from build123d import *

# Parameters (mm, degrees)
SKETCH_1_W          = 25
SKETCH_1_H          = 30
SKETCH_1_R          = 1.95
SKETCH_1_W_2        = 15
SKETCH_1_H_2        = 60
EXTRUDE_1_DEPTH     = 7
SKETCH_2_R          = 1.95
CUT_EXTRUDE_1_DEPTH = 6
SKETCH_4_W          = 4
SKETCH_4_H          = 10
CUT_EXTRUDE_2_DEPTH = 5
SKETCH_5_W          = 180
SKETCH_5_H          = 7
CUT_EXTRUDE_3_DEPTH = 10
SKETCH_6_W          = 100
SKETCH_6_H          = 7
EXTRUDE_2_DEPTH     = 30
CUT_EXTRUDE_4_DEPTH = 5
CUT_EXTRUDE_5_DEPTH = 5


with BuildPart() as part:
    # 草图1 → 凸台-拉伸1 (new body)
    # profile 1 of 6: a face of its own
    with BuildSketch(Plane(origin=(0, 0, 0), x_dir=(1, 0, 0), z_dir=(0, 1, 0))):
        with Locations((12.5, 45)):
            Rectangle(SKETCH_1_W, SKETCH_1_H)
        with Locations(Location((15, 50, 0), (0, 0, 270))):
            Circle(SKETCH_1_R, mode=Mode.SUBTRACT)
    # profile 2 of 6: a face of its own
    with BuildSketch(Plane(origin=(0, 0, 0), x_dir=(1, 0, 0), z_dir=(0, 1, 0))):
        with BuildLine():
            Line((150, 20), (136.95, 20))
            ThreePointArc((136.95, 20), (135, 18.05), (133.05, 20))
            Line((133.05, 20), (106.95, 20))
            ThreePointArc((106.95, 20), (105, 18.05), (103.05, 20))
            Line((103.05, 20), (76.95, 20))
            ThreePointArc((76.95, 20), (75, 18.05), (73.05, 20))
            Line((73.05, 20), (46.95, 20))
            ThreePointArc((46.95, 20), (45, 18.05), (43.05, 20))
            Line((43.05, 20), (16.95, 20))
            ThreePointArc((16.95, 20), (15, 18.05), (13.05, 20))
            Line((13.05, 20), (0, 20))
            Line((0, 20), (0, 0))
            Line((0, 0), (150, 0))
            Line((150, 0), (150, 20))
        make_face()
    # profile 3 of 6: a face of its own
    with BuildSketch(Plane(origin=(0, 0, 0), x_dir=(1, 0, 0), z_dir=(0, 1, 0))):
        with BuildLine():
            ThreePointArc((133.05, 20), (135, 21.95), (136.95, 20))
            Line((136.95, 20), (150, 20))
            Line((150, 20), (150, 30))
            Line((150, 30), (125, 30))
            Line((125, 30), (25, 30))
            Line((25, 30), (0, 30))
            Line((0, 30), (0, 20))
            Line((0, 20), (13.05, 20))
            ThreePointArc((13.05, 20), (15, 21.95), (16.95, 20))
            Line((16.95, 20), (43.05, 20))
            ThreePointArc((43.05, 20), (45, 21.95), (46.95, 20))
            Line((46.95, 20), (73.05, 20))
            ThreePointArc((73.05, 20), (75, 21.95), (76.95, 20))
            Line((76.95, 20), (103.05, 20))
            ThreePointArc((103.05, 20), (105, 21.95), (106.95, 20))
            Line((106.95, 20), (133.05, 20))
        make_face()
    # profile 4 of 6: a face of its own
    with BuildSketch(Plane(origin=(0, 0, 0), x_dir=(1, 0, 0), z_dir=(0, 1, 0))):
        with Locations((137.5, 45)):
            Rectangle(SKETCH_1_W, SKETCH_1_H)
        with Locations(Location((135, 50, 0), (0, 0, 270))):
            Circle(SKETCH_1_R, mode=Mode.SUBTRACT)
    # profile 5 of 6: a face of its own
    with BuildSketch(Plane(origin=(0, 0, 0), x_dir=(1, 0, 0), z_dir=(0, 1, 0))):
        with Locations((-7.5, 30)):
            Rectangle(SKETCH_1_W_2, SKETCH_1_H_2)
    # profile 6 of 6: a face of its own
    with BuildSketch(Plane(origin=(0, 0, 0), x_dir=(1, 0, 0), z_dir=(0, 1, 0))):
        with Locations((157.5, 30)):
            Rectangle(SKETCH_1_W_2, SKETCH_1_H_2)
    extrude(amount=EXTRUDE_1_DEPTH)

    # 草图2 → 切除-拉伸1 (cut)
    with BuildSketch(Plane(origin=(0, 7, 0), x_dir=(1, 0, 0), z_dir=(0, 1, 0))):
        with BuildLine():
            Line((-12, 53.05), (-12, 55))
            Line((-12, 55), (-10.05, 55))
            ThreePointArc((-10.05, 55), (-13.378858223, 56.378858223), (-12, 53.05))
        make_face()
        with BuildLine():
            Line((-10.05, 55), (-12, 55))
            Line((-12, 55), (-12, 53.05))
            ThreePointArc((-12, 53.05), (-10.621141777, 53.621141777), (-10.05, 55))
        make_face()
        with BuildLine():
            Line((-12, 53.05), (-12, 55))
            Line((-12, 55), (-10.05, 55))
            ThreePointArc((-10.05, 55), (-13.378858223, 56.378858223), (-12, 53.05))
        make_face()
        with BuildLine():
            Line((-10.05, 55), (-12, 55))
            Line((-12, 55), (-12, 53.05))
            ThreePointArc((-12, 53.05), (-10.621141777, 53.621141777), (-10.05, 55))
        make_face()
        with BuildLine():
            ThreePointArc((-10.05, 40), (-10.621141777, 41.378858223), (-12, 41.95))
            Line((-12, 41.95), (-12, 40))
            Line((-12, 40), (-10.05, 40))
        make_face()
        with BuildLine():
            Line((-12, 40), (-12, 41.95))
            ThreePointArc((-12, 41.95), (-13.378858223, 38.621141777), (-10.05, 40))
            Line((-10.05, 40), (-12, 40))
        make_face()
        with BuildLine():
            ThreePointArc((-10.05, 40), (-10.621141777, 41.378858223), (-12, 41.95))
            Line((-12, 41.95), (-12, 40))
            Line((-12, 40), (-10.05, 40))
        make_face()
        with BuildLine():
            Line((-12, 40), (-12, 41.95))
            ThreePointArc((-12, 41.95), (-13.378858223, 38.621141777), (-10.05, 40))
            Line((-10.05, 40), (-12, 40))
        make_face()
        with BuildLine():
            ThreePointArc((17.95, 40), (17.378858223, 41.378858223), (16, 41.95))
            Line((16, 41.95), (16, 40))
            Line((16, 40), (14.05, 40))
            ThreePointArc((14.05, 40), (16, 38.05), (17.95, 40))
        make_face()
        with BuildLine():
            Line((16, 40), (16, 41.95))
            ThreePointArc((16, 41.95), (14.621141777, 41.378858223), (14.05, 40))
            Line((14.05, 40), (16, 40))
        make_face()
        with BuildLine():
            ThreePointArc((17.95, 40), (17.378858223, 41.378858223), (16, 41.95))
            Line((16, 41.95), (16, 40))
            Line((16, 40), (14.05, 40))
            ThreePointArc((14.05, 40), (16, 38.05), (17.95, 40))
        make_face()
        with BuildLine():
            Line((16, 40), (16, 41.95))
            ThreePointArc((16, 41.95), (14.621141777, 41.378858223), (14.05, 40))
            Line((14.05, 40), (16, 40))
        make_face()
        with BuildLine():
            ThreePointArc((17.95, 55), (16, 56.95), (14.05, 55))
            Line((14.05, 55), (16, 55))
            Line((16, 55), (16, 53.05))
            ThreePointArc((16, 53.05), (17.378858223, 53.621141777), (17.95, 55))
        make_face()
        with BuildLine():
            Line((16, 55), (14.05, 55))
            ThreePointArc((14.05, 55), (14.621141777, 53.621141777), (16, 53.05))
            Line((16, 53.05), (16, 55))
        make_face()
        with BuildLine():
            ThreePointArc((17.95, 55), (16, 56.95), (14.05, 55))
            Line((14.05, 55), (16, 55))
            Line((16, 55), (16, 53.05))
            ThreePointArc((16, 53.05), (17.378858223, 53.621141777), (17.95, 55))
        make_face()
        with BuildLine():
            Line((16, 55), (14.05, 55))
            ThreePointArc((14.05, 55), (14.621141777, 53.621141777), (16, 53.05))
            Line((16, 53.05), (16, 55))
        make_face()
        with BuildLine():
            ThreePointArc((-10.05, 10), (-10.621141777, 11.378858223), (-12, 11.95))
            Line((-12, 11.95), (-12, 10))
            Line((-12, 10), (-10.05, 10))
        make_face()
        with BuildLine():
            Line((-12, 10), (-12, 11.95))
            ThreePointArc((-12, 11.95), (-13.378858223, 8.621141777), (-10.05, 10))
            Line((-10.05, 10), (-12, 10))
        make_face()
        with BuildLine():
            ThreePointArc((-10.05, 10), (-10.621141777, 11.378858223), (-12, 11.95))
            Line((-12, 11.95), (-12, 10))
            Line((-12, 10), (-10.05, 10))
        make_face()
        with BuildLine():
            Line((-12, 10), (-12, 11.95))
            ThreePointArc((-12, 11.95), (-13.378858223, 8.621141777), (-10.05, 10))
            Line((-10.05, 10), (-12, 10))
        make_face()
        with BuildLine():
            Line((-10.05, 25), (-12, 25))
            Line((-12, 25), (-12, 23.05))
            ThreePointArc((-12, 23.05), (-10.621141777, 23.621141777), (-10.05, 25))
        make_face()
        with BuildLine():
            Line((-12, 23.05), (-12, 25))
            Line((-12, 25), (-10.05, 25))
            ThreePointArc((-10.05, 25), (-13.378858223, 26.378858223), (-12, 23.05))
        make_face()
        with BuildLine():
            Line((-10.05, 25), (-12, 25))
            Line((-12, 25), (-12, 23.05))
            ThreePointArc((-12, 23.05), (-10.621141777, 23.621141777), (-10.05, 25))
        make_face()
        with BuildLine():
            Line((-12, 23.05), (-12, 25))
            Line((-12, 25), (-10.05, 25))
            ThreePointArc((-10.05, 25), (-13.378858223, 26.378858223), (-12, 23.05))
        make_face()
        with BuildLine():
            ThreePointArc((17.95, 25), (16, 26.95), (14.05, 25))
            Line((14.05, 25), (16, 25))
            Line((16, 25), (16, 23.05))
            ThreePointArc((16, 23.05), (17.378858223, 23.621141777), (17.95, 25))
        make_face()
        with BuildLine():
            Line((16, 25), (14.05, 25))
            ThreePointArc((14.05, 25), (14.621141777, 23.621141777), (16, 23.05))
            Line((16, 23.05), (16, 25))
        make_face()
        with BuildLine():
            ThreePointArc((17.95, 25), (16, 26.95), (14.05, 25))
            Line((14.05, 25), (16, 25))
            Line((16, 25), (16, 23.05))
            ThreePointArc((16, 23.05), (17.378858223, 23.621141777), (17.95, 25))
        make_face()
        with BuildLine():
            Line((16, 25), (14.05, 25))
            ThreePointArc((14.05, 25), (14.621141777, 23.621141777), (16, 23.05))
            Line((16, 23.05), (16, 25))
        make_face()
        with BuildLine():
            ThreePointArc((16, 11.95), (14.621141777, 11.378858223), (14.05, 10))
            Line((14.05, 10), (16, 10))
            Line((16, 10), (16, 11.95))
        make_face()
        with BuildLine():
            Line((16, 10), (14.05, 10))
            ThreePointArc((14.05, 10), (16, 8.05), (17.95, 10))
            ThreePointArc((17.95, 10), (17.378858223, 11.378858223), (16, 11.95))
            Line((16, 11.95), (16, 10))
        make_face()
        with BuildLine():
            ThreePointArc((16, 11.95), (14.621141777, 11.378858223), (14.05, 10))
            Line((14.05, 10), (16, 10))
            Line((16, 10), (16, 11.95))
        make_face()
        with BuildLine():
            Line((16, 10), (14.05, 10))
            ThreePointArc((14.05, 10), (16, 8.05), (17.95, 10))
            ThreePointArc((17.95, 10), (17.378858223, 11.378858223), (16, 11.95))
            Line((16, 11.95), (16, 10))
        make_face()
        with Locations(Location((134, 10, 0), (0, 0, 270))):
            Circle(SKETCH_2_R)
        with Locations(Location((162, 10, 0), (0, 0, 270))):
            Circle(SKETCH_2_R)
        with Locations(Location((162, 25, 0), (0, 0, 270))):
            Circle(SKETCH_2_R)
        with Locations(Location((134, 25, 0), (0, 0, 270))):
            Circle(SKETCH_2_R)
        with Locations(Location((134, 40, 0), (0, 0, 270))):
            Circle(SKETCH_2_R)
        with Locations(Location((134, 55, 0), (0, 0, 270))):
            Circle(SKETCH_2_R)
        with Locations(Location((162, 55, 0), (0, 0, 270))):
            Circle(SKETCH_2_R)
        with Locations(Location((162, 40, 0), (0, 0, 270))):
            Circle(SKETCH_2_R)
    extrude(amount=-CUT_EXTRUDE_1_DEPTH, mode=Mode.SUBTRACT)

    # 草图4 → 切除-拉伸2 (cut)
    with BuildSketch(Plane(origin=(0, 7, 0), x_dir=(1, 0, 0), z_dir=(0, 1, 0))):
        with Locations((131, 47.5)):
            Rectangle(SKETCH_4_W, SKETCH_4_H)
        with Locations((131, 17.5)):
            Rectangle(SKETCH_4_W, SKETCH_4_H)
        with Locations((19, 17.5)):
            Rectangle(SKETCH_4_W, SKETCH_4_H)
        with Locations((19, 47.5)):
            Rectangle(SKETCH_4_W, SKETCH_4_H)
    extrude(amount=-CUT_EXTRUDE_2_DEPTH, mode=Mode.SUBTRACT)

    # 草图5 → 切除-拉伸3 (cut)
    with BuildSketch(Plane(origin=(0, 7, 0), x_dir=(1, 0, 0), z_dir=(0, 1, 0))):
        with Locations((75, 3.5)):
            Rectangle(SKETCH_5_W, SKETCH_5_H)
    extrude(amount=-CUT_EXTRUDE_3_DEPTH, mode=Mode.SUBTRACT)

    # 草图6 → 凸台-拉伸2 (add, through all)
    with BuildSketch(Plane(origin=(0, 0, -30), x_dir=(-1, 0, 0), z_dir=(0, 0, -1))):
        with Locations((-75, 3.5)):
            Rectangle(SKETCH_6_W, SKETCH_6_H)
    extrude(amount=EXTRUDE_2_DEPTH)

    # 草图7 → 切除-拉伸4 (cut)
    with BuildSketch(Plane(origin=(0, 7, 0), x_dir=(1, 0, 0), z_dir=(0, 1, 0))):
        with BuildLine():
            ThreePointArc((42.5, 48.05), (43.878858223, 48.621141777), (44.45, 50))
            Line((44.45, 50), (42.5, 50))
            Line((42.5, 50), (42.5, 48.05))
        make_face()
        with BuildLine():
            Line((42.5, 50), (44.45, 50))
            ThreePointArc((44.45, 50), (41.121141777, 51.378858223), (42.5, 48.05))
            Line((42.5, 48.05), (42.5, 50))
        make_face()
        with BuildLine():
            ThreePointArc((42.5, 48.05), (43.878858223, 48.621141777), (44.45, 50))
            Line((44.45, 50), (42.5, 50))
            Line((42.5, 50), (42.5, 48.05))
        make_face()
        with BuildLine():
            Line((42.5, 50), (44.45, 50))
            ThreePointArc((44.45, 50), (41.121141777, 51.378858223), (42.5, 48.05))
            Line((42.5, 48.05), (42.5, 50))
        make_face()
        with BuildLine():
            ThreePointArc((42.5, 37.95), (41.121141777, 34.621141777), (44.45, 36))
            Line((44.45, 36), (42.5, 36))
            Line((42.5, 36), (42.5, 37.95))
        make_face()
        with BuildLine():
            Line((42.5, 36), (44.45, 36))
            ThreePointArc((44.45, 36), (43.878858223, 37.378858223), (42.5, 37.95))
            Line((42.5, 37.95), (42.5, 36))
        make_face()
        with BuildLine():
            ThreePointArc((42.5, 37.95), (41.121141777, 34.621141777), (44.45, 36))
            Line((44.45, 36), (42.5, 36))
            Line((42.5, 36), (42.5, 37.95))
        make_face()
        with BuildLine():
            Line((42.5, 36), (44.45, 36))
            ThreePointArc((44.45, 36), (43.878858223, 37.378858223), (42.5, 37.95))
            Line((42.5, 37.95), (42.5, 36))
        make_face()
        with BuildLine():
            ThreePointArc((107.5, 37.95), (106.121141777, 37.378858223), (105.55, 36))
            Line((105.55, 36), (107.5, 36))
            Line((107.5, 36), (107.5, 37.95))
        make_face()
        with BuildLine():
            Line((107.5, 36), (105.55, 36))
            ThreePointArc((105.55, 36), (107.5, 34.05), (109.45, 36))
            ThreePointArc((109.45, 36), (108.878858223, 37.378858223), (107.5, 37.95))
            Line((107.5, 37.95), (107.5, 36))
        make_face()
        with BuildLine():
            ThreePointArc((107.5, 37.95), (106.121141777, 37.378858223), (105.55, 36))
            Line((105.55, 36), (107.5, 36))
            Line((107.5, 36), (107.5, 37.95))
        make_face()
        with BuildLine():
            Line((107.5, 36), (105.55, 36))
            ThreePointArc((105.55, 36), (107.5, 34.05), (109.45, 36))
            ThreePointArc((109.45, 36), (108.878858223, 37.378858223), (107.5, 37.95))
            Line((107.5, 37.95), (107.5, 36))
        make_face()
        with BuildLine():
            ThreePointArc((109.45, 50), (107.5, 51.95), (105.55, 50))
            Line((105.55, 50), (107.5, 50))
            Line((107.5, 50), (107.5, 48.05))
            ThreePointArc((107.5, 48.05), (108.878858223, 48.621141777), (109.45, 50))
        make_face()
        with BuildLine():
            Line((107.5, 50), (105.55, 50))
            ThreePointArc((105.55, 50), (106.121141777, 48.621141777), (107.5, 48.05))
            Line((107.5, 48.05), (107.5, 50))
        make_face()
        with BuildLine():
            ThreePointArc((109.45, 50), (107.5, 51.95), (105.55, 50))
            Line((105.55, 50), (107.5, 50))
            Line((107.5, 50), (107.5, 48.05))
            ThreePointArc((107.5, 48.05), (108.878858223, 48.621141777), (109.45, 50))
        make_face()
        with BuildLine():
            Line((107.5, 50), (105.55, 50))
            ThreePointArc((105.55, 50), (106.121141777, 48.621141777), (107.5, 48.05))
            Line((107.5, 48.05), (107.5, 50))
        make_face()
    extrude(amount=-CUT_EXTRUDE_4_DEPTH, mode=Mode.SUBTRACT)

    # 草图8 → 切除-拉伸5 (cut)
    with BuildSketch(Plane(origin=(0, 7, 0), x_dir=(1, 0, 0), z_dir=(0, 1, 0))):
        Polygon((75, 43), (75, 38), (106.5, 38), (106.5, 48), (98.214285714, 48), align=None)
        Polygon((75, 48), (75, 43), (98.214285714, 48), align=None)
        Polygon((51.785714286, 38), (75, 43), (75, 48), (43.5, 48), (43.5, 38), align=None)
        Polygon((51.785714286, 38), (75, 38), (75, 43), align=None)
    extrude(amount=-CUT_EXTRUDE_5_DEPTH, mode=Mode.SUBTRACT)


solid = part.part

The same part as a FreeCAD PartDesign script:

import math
import FreeCAD as App
import Part
import Sketcher
Q = App.Units.Quantity


def add_polygon(sketch, points):
    """Adds a closed chain of lines whose ends are joined by coincident constraints."""
    first, n = sketch.GeometryCount, len(points)
    for a, b in zip(points, points[1:] + points[:1]):
        sketch.addGeometry(Part.LineSegment(App.Vector(*a, 0), App.Vector(*b, 0)), False)
    for i in range(n):
        sketch.addConstraint(Sketcher.Constraint("Coincident", first + i, 2, first + (i + 1) % n, 1))

doc = App.newDocument("Part")
params = doc.addObject("Spreadsheet::Sheet", "Params")
for row, (alias, value) in enumerate([
    ("sketch1_diameter", "3.9 mm"),
    ("sketch1_width", "40 mm"),
    ("sketch1_width2", "180 mm"),
    ("sketch1_height", "60 mm"),
    ("sketch1_height2", "30 mm"),
    ("pad1_length", "7 mm"),
    ("sketch2_diameter", "3.9 mm"),
    ("pocket1_length", "6 mm"),
    ("sketch3_width", "4 mm"),
    ("sketch3_height", "10 mm"),
    ("pocket2_length", "5 mm"),
    ("sketch4_width", "180 mm"),
    ("sketch4_height", "7 mm"),
    ("pocket3_length", "10 mm"),
    ("sketch5_width", "100 mm"),
    ("sketch5_height", "7 mm"),
    ("pad2_length", "30 mm"),
    ("sketch6_radius", "1.95 mm"),
    ("pocket4_length", "5 mm"),
    ("sketch7_width", "63 mm"),
    ("sketch7_height", "10 mm"),
    ("pocket5_length", "5 mm"),
], start=1):
    params.set(f"A{row}", alias)
    params.set(f"B{row}", "=" + value)
    params.setAlias(f"B{row}", alias)

body = doc.addObject("PartDesign::Body", "Body")

# Sketch on XZ plane
sketch1 = doc.addObject("Sketcher::SketchObject", "Sketch")
body.addObject(sketch1)
sketch1.AttachmentSupport = (doc.XZ_Plane, [""])
sketch1.MapMode = "FlatFace"
add_polygon(sketch1, [(25, -60), (-15, -60), (-15, 0), (165, 0), (165, -60), (125, -60), (125, -30), (25, -30)])  # lines 0-7
sketch1.addGeometry(Part.Circle(App.Vector(15, -50, 0), App.Vector(0, 0, 1), 1.95), False)  # 8
sketch1.addGeometry(Part.Circle(App.Vector(135, -20, 0), App.Vector(0, 0, 1), 1.95), False)  # 9
sketch1.addGeometry(Part.Circle(App.Vector(105, -20, 0), App.Vector(0, 0, 1), 1.95), False)  # 10
sketch1.addGeometry(Part.Circle(App.Vector(15, -20, 0), App.Vector(0, 0, 1), 1.95), False)  # 11
sketch1.addGeometry(Part.Circle(App.Vector(45, -20, 0), App.Vector(0, 0, 1), 1.95), False)  # 12
sketch1.addGeometry(Part.Circle(App.Vector(75, -20, 0), App.Vector(0, 0, 1), 1.95), False)  # 13
sketch1.addGeometry(Part.Circle(App.Vector(135, -50, 0), App.Vector(0, 0, 1), 1.95), False)  # 14
sketch1.addConstraint(Sketcher.Constraint("Horizontal", 0))
sketch1.addConstraint(Sketcher.Constraint("Vertical", 1))
sketch1.addConstraint(Sketcher.Constraint("Horizontal", 2))
sketch1.addConstraint(Sketcher.Constraint("Vertical", 3))
sketch1.addConstraint(Sketcher.Constraint("Horizontal", 4))
sketch1.addConstraint(Sketcher.Constraint("Vertical", 5))
sketch1.addConstraint(Sketcher.Constraint("Horizontal", 6))
sketch1.addConstraint(Sketcher.Constraint("Vertical", 7))
sketch1.addConstraint(Sketcher.Constraint("Equal", 8, 9))
sketch1.addConstraint(Sketcher.Constraint("Equal", 9, 10))
sketch1.addConstraint(Sketcher.Constraint("Equal", 10, 11))
sketch1.addConstraint(Sketcher.Constraint("Equal", 11, 12))
sketch1.addConstraint(Sketcher.Constraint("Equal", 12, 13))
sketch1.addConstraint(Sketcher.Constraint("Equal", 13, 14))
sketch1.addConstraint(Sketcher.Constraint("PointOnObject", 1, 2, -1))
sketch1.addConstraint(Sketcher.Constraint("Horizontal", 9, 3, 10, 3))
sketch1.addConstraint(Sketcher.Constraint("Horizontal", 10, 3, 11, 3))
sketch1.addConstraint(Sketcher.Constraint("Horizontal", 11, 3, 12, 3))
sketch1.addConstraint(Sketcher.Constraint("Horizontal", 12, 3, 13, 3))
sketch1.addConstraint(Sketcher.Constraint("Horizontal", 8, 3, 14, 3))
sketch1.addConstraint(Sketcher.Constraint("Horizontal", 0, 2, 3, 2))
sketch1.addConstraint(Sketcher.Constraint("Vertical", 8, 3, 11, 3))
sketch1.addConstraint(Sketcher.Constraint("Vertical", 9, 3, 14, 3))
sketch1.addConstraint(Sketcher.Constraint("Equal", 0, 4))
sketch1.addConstraint(Sketcher.Constraint("Diameter", 8, Q("3.9 mm")))
sketch1.addConstraint(Sketcher.Constraint("DistanceX", 0, 2, 0, 1, Q("40 mm")))
sketch1.addConstraint(Sketcher.Constraint("DistanceX", 2, 1, 2, 2, Q("180 mm")))
sketch1.addConstraint(Sketcher.Constraint("DistanceY", 1, 1, 1, 2, Q("60 mm")))
sketch1.addConstraint(Sketcher.Constraint("DistanceY", 5, 1, 5, 2, Q("30 mm")))
sketch1.addConstraint(Sketcher.Constraint("DistanceX", -1, 1, 8, 3, Q("15 mm")))
sketch1.addConstraint(Sketcher.Constraint("DistanceY", 8, 3, -1, 1, Q("50 mm")))
sketch1.addConstraint(Sketcher.Constraint("DistanceX", -1, 1, 9, 3, Q("135 mm")))
sketch1.addConstraint(Sketcher.Constraint("DistanceY", 9, 3, -1, 1, Q("20 mm")))
sketch1.addConstraint(Sketcher.Constraint("DistanceX", -1, 1, 10, 3, Q("105 mm")))
sketch1.addConstraint(Sketcher.Constraint("DistanceX", -1, 1, 12, 3, Q("45 mm")))
sketch1.addConstraint(Sketcher.Constraint("DistanceX", -1, 1, 13, 3, Q("75 mm")))
sketch1.addConstraint(Sketcher.Constraint("DistanceX", 0, 2, -1, 1, Q("15 mm")))
sketch1.setExpression("Constraints[32]", "Params.sketch1_diameter")
sketch1.setExpression("Constraints[33]", "Params.sketch1_width")
sketch1.setExpression("Constraints[34]", "Params.sketch1_width2")
sketch1.setExpression("Constraints[35]", "Params.sketch1_height")
sketch1.setExpression("Constraints[36]", "Params.sketch1_height2")
pad1 = doc.addObject("PartDesign::Pad", "Pad")
body.addObject(pad1)
pad1.Profile = sketch1
pad1.setExpression("Length", "Params.pad1_length")
pad1.Reversed = True

# Sketch on XZ plane
sketch2 = doc.addObject("Sketcher::SketchObject", "Sketch001")
body.addObject(sketch2)
sketch2.AttachmentSupport = (doc.XZ_Plane, [""])
sketch2.MapMode = "FlatFace"
sketch2.AttachmentOffset = App.Placement(App.Vector(0, 0, -7), App.Rotation())
sketch2.addGeometry(Part.ArcOfCircle(Part.Circle(App.Vector(-12, -55, 0), App.Vector(0, 0, 1), 1.95), math.radians(90), math.radians(360)), False)
sketch2.addGeometry(Part.ArcOfCircle(Part.Circle(App.Vector(-12, -55, 0), App.Vector(0, 0, 1), 1.95), math.radians(0), math.radians(90)), False)
sketch2.addGeometry(Part.ArcOfCircle(Part.Circle(App.Vector(-12, -40, 0), App.Vector(0, 0, 1), 1.95), math.radians(-90), math.radians(0)), False)
sketch2.addGeometry(Part.ArcOfCircle(Part.Circle(App.Vector(-12, -40, 0), App.Vector(0, 0, 1), 1.95), math.radians(0), math.radians(270)), False)
sketch2.addGeometry(Part.ArcOfCircle(Part.Circle(App.Vector(16, -40, 0), App.Vector(0, 0, 1), 1.95), math.radians(-90), math.radians(0)), False)
sketch2.addGeometry(Part.ArcOfCircle(Part.Circle(App.Vector(16, -40, 0), App.Vector(0, 0, 1), 1.95), math.radians(-180), math.radians(-90)), False)
sketch2.addGeometry(Part.ArcOfCircle(Part.Circle(App.Vector(16, -40, 0), App.Vector(0, 0, 1), 1.95), math.radians(0), math.radians(180)), False)
sketch2.addGeometry(Part.ArcOfCircle(Part.Circle(App.Vector(16, -55, 0), App.Vector(0, 0, 1), 1.95), math.radians(180), math.radians(360)), False)
sketch2.addGeometry(Part.ArcOfCircle(Part.Circle(App.Vector(16, -55, 0), App.Vector(0, 0, 1), 1.95), math.radians(90), math.radians(180)), False)
sketch2.addGeometry(Part.ArcOfCircle(Part.Circle(App.Vector(16, -55, 0), App.Vector(0, 0, 1), 1.95), math.radians(0), math.radians(90)), False)
sketch2.addGeometry(Part.ArcOfCircle(Part.Circle(App.Vector(-12, -10, 0), App.Vector(0, 0, 1), 1.95), math.radians(-90), math.radians(0)), False)
sketch2.addGeometry(Part.ArcOfCircle(Part.Circle(App.Vector(-12, -10, 0), App.Vector(0, 0, 1), 1.95), math.radians(0), math.radians(270)), False)
sketch2.addGeometry(Part.ArcOfCircle(Part.Circle(App.Vector(-12, -25, 0), App.Vector(0, 0, 1), 1.95), math.radians(0), math.radians(90)), False)
sketch2.addGeometry(Part.ArcOfCircle(Part.Circle(App.Vector(-12, -25, 0), App.Vector(0, 0, 1), 1.95), math.radians(90), math.radians(360)), False)
sketch2.addGeometry(Part.ArcOfCircle(Part.Circle(App.Vector(16, -25, 0), App.Vector(0, 0, 1), 1.95), math.radians(180), math.radians(360)), False)
sketch2.addGeometry(Part.ArcOfCircle(Part.Circle(App.Vector(16, -25, 0), App.Vector(0, 0, 1), 1.95), math.radians(90), math.radians(180)), False)
sketch2.addGeometry(Part.ArcOfCircle(Part.Circle(App.Vector(16, -25, 0), App.Vector(0, 0, 1), 1.95), math.radians(0), math.radians(90)), False)
sketch2.addGeometry(Part.ArcOfCircle(Part.Circle(App.Vector(16, -10, 0), App.Vector(0, 0, 1), 1.95), math.radians(-180), math.radians(-90)), False)
sketch2.addGeometry(Part.ArcOfCircle(Part.Circle(App.Vector(16, -10, 0), App.Vector(0, 0, 1), 1.95), math.radians(0), math.radians(180)), False)
sketch2.addGeometry(Part.ArcOfCircle(Part.Circle(App.Vector(16, -10, 0), App.Vector(0, 0, 1), 1.95), math.radians(-90), math.radians(0)), False)
sketch2.addGeometry(Part.Circle(App.Vector(134, -10, 0), App.Vector(0, 0, 1), 1.95), False)
sketch2.addGeometry(Part.Circle(App.Vector(162, -10, 0), App.Vector(0, 0, 1), 1.95), False)
sketch2.addGeometry(Part.Circle(App.Vector(162, -25, 0), App.Vector(0, 0, 1), 1.95), False)
sketch2.addGeometry(Part.Circle(App.Vector(134, -25, 0), App.Vector(0, 0, 1), 1.95), False)
sketch2.addGeometry(Part.Circle(App.Vector(134, -40, 0), App.Vector(0, 0, 1), 1.95), False)
sketch2.addGeometry(Part.Circle(App.Vector(134, -55, 0), App.Vector(0, 0, 1), 1.95), False)
sketch2.addGeometry(Part.Circle(App.Vector(162, -55, 0), App.Vector(0, 0, 1), 1.95), False)
sketch2.addGeometry(Part.Circle(App.Vector(162, -40, 0), App.Vector(0, 0, 1), 1.95), False)
sketch2.addConstraint(Sketcher.Constraint("Tangent", 0, 1, 1, 2))
sketch2.addConstraint(Sketcher.Constraint("Coincident", 1, 1, 0, 2))
sketch2.addConstraint(Sketcher.Constraint("Tangent", 2, 1, 3, 2))
sketch2.addConstraint(Sketcher.Constraint("Coincident", 3, 1, 2, 2))
sketch2.addConstraint(Sketcher.Constraint("Tangent", 4, 1, 5, 2))
sketch2.addConstraint(Sketcher.Constraint("Tangent", 5, 1, 6, 2))
sketch2.addConstraint(Sketcher.Constraint("Tangent", 6, 1, 4, 2))
sketch2.addConstraint(Sketcher.Constraint("Tangent", 7, 1, 8, 2))
sketch2.addConstraint(Sketcher.Constraint("Tangent", 8, 1, 9, 2))
sketch2.addConstraint(Sketcher.Constraint("Tangent", 9, 1, 7, 2))
sketch2.addConstraint(Sketcher.Constraint("Tangent", 10, 1, 11, 2))
sketch2.addConstraint(Sketcher.Constraint("Coincident", 11, 1, 10, 2))
sketch2.addConstraint(Sketcher.Constraint("Tangent", 12, 1, 13, 2))
sketch2.addConstraint(Sketcher.Constraint("Coincident", 13, 1, 12, 2))
sketch2.addConstraint(Sketcher.Constraint("Tangent", 14, 1, 15, 2))
sketch2.addConstraint(Sketcher.Constraint("Tangent", 15, 1, 16, 2))
sketch2.addConstraint(Sketcher.Constraint("Tangent", 16, 1, 14, 2))
sketch2.addConstraint(Sketcher.Constraint("Tangent", 17, 1, 18, 2))
sketch2.addConstraint(Sketcher.Constraint("Tangent", 18, 1, 19, 2))
sketch2.addConstraint(Sketcher.Constraint("Tangent", 19, 1, 17, 2))
sketch2.addConstraint(Sketcher.Constraint("Equal", 1, 2))
sketch2.addConstraint(Sketcher.Constraint("Equal", 3, 4))
sketch2.addConstraint(Sketcher.Constraint("Equal", 6, 7))
sketch2.addConstraint(Sketcher.Constraint("Equal", 9, 10))
sketch2.addConstraint(Sketcher.Constraint("Equal", 11, 12))
sketch2.addConstraint(Sketcher.Constraint("Equal", 13, 14))
sketch2.addConstraint(Sketcher.Constraint("Equal", 16, 17))
sketch2.addConstraint(Sketcher.Constraint("Equal", 19, 20))
sketch2.addConstraint(Sketcher.Constraint("Equal", 20, 21))
sketch2.addConstraint(Sketcher.Constraint("Equal", 21, 22))
sketch2.addConstraint(Sketcher.Constraint("Equal", 22, 23))
sketch2.addConstraint(Sketcher.Constraint("Equal", 23, 24))
sketch2.addConstraint(Sketcher.Constraint("Equal", 24, 25))
sketch2.addConstraint(Sketcher.Constraint("Equal", 25, 26))
sketch2.addConstraint(Sketcher.Constraint("Equal", 26, 27))
sketch2.addConstraint(Sketcher.Constraint("Horizontal", 3, 3, 4, 3))
sketch2.addConstraint(Sketcher.Constraint("Horizontal", 1, 3, 7, 3))
sketch2.addConstraint(Sketcher.Constraint("Horizontal", 13, 3, 14, 3))
sketch2.addConstraint(Sketcher.Constraint("Horizontal", 11, 3, 17, 3))
sketch2.addConstraint(Sketcher.Constraint("Horizontal", 19, 3, 20, 3))
sketch2.addConstraint(Sketcher.Constraint("Horizontal", 20, 3, 21, 3))
sketch2.addConstraint(Sketcher.Constraint("Horizontal", 16, 3, 22, 3))
sketch2.addConstraint(Sketcher.Constraint("Horizontal", 22, 3, 23, 3))
sketch2.addConstraint(Sketcher.Constraint("Horizontal", 6, 3, 24, 3))
sketch2.addConstraint(Sketcher.Constraint("Horizontal", 9, 3, 25, 3))
sketch2.addConstraint(Sketcher.Constraint("Horizontal", 25, 3, 26, 3))
sketch2.addConstraint(Sketcher.Constraint("Horizontal", 24, 3, 27, 3))
sketch2.addConstraint(Sketcher.Constraint("Horizontal", 26, 3, 1, 1))
sketch2.addConstraint(Sketcher.Constraint("Horizontal", 27, 3, 3, 1))
sketch2.addConstraint(Sketcher.Constraint("Horizontal", 3, 1, 5, 1))
sketch2.addConstraint(Sketcher.Constraint("Horizontal", 5, 1, 6, 1))
sketch2.addConstraint(Sketcher.Constraint("Horizontal", 1, 1, 7, 1))
sketch2.addConstraint(Sketcher.Constraint("Horizontal", 7, 1, 9, 1))
sketch2.addConstraint(Sketcher.Constraint("Horizontal", 21, 3, 11, 1))
sketch2.addConstraint(Sketcher.Constraint("Horizontal", 23, 3, 12, 1))
sketch2.addConstraint(Sketcher.Constraint("Horizontal", 12, 1, 14, 1))
sketch2.addConstraint(Sketcher.Constraint("Horizontal", 14, 1, 16, 1))
sketch2.addConstraint(Sketcher.Constraint("Horizontal", 11, 1, 17, 1))
sketch2.addConstraint(Sketcher.Constraint("Horizontal", 17, 1, 18, 1))
sketch2.addConstraint(Sketcher.Constraint("Vertical", 1, 3, 2, 3))
sketch2.addConstraint(Sketcher.Constraint("Vertical", 6, 3, 7, 3))
sketch2.addConstraint(Sketcher.Constraint("Vertical", 3, 3, 10, 3))
sketch2.addConstraint(Sketcher.Constraint("Vertical", 11, 3, 12, 3))
sketch2.addConstraint(Sketcher.Constraint("Vertical", 9, 3, 14, 3))
sketch2.addConstraint(Sketcher.Constraint("Vertical", 16, 3, 17, 3))
sketch2.addConstraint(Sketcher.Constraint("Vertical", 21, 3, 22, 3))
sketch2.addConstraint(Sketcher.Constraint("Vertical", 20, 3, 23, 3))
sketch2.addConstraint(Sketcher.Constraint("Vertical", 23, 3, 24, 3))
sketch2.addConstraint(Sketcher.Constraint("Vertical", 24, 3, 25, 3))
sketch2.addConstraint(Sketcher.Constraint("Vertical", 22, 3, 26, 3))
sketch2.addConstraint(Sketcher.Constraint("Vertical", 26, 3, 27, 3))
sketch2.addConstraint(Sketcher.Constraint("Vertical", 13, 3, 0, 1))
sketch2.addConstraint(Sketcher.Constraint("Vertical", 0, 1, 2, 1))
sketch2.addConstraint(Sketcher.Constraint("Vertical", 19, 3, 4, 1))
sketch2.addConstraint(Sketcher.Constraint("Vertical", 4, 1, 8, 1))
sketch2.addConstraint(Sketcher.Constraint("Vertical", 2, 1, 10, 1))
sketch2.addConstraint(Sketcher.Constraint("Vertical", 10, 1, 13, 1))
sketch2.addConstraint(Sketcher.Constraint("Vertical", 8, 1, 15, 1))
sketch2.addConstraint(Sketcher.Constraint("Vertical", 15, 1, 19, 1))
sketch2.addConstraint(Sketcher.Constraint("Diameter", 20, Q("3.9 mm")))
sketch2.addConstraint(Sketcher.Constraint("DistanceX", 0, 3, -1, 1, Q("12 mm")))
sketch2.addConstraint(Sketcher.Constraint("DistanceY", 0, 3, -1, 1, Q("55 mm")))
sketch2.addConstraint(Sketcher.Constraint("DistanceY", 2, 3, -1, 1, Q("40 mm")))
sketch2.addConstraint(Sketcher.Constraint("DistanceX", -1, 1, 4, 3, Q("16 mm")))
sketch2.addConstraint(Sketcher.Constraint("DistanceY", 10, 3, -1, 1, Q("10 mm")))
sketch2.addConstraint(Sketcher.Constraint("DistanceY", 12, 3, -1, 1, Q("25 mm")))
sketch2.addConstraint(Sketcher.Constraint("DistanceX", -1, 1, 20, 3, Q("134 mm")))
sketch2.addConstraint(Sketcher.Constraint("DistanceX", -1, 1, 21, 3, Q("162 mm")))
sketch2.setExpression("Constraints[79]", "Params.sketch2_diameter")
pocket1 = doc.addObject("PartDesign::Pocket", "Pocket")
body.addObject(pocket1)
pocket1.Profile = sketch2
pocket1.setExpression("Length", "Params.pocket1_length")
pocket1.Reversed = True

# Sketch on XZ plane
sketch3 = doc.addObject("Sketcher::SketchObject", "Sketch002")
body.addObject(sketch3)
sketch3.AttachmentSupport = (doc.XZ_Plane, [""])
sketch3.MapMode = "FlatFace"
sketch3.AttachmentOffset = App.Placement(App.Vector(0, 0, -7), App.Rotation())
add_polygon(sketch3, [(129, -52.5), (129, -42.5), (133, -42.5), (133, -52.5)])  # lines 0-3
add_polygon(sketch3, [(129, -22.5), (129, -12.5), (133, -12.5), (133, -22.5)])  # lines 4-7
add_polygon(sketch3, [(17, -22.5), (17, -12.5), (21, -12.5), (21, -22.5)])  # lines 8-11
add_polygon(sketch3, [(17, -52.5), (17, -42.5), (21, -42.5), (21, -52.5)])  # lines 12-15
sketch3.addConstraint(Sketcher.Constraint("Vertical", 0))
sketch3.addConstraint(Sketcher.Constraint("Horizontal", 1))
sketch3.addConstraint(Sketcher.Constraint("Vertical", 2))
sketch3.addConstraint(Sketcher.Constraint("Horizontal", 3))
sketch3.addConstraint(Sketcher.Constraint("Vertical", 4))
sketch3.addConstraint(Sketcher.Constraint("Horizontal", 5))
sketch3.addConstraint(Sketcher.Constraint("Vertical", 6))
sketch3.addConstraint(Sketcher.Constraint("Horizontal", 7))
sketch3.addConstraint(Sketcher.Constraint("Vertical", 8))
sketch3.addConstraint(Sketcher.Constraint("Horizontal", 9))
sketch3.addConstraint(Sketcher.Constraint("Vertical", 10))
sketch3.addConstraint(Sketcher.Constraint("Horizontal", 11))
sketch3.addConstraint(Sketcher.Constraint("Vertical", 12))
sketch3.addConstraint(Sketcher.Constraint("Horizontal", 13))
sketch3.addConstraint(Sketcher.Constraint("Vertical", 14))
sketch3.addConstraint(Sketcher.Constraint("Horizontal", 15))
sketch3.addConstraint(Sketcher.Constraint("Horizontal", 5, 2, 8, 2))
sketch3.addConstraint(Sketcher.Constraint("Horizontal", 7, 2, 10, 2))
sketch3.addConstraint(Sketcher.Constraint("Horizontal", 1, 2, 12, 2))
sketch3.addConstraint(Sketcher.Constraint("Horizontal", 3, 2, 14, 2))
sketch3.addConstraint(Sketcher.Constraint("Vertical", 3, 2, 4, 2))
sketch3.addConstraint(Sketcher.Constraint("Vertical", 2, 2, 5, 2))
sketch3.addConstraint(Sketcher.Constraint("Vertical", 11, 2, 12, 2))
sketch3.addConstraint(Sketcher.Constraint("Vertical", 10, 2, 13, 2))
sketch3.addConstraint(Sketcher.Constraint("Equal", 7, 9))
sketch3.addConstraint(Sketcher.Constraint("Equal", 2, 4))
sketch3.addConstraint(Sketcher.Constraint("DistanceX", 1, 1, 1, 2, Q("4 mm")))
sketch3.addConstraint(Sketcher.Constraint("DistanceY", 0, 1, 0, 2, Q("10 mm")))
sketch3.addConstraint(Sketcher.Constraint("DistanceX", -1, 1, 0, 2, Q("129 mm")))
sketch3.addConstraint(Sketcher.Constraint("DistanceX", -1, 1, 8, 2, Q("17 mm")))
sketch3.addConstraint(Sketcher.Constraint("DistanceY", 0, 2, 4, 2, Q("30 mm")))
sketch3.addConstraint(Sketcher.Constraint("DistanceY", 0, 2, -1, 1, Q("42.5 mm")))
sketch3.setExpression("Constraints[42]", "Params.sketch3_width")
sketch3.setExpression("Constraints[43]", "Params.sketch3_height")
pocket2 = doc.addObject("PartDesign::Pocket", "Pocket001")
body.addObject(pocket2)
pocket2.Profile = sketch3
pocket2.setExpression("Length", "Params.pocket2_length")
pocket2.Reversed = True

# Sketch on XZ plane
sketch4 = doc.addObject("Sketcher::SketchObject", "Sketch003")
body.addObject(sketch4)
sketch4.AttachmentSupport = (doc.XZ_Plane, [""])
sketch4.MapMode = "FlatFace"
sketch4.AttachmentOffset = App.Placement(App.Vector(0, 0, -7), App.Rotation())
add_polygon(sketch4, [(-15, -7), (-15, 0), (165, 0), (165, -7)])  # lines 0-3
sketch4.addConstraint(Sketcher.Constraint("Vertical", 0))
sketch4.addConstraint(Sketcher.Constraint("Horizontal", 1))
sketch4.addConstraint(Sketcher.Constraint("Vertical", 2))
sketch4.addConstraint(Sketcher.Constraint("Horizontal", 3))
sketch4.addConstraint(Sketcher.Constraint("PointOnObject", 0, 2, -1))
sketch4.addConstraint(Sketcher.Constraint("DistanceX", 1, 1, 1, 2, Q("180 mm")))
sketch4.addConstraint(Sketcher.Constraint("DistanceY", 0, 1, 0, 2, Q("7 mm")))
sketch4.addConstraint(Sketcher.Constraint("DistanceX", 0, 2, -1, 1, Q("15 mm")))
sketch4.setExpression("Constraints[9]", "Params.sketch4_width")
sketch4.setExpression("Constraints[10]", "Params.sketch4_height")
pocket3 = doc.addObject("PartDesign::Pocket", "Pocket002")
body.addObject(pocket3)
pocket3.Profile = sketch4
pocket3.setExpression("Length", "Params.pocket3_length")
pocket3.Reversed = True

# Sketch on XY plane
sketch5 = doc.addObject("Sketcher::SketchObject", "Sketch004")
body.addObject(sketch5)
sketch5.AttachmentSupport = (doc.XY_Plane, [""])
sketch5.MapMode = "FlatFace"
sketch5.AttachmentOffset = App.Placement(App.Vector(0, 0, -30), App.Rotation())
add_polygon(sketch5, [(125, 7), (125, 0), (25, 0), (25, 7)])  # lines 0-3
sketch5.addConstraint(Sketcher.Constraint("Vertical", 0))
sketch5.addConstraint(Sketcher.Constraint("Horizontal", 1))
sketch5.addConstraint(Sketcher.Constraint("Vertical", 2))
sketch5.addConstraint(Sketcher.Constraint("Horizontal", 3))
sketch5.addConstraint(Sketcher.Constraint("PointOnObject", 0, 2, -1))
sketch5.addConstraint(Sketcher.Constraint("DistanceX", 1, 2, 1, 1, Q("100 mm")))
sketch5.addConstraint(Sketcher.Constraint("DistanceY", 0, 2, 0, 1, Q("7 mm")))
sketch5.addConstraint(Sketcher.Constraint("DistanceX", -1, 1, 0, 2, Q("125 mm")))
sketch5.setExpression("Constraints[9]", "Params.sketch5_width")
sketch5.setExpression("Constraints[10]", "Params.sketch5_height")
pad2 = doc.addObject("PartDesign::Pad", "Pad001")
body.addObject(pad2)
pad2.Profile = sketch5
pad2.setExpression("Length", "Params.pad2_length")
pad2.Reversed = True

# Sketch on XZ plane
sketch6 = doc.addObject("Sketcher::SketchObject", "Sketch005")
body.addObject(sketch6)
sketch6.AttachmentSupport = (doc.XZ_Plane, [""])
sketch6.MapMode = "FlatFace"
sketch6.AttachmentOffset = App.Placement(App.Vector(0, 0, -7), App.Rotation())
sketch6.addGeometry(Part.ArcOfCircle(Part.Circle(App.Vector(42.5, -50, 0), App.Vector(0, 0, 1), 1.95), math.radians(0), math.radians(90)), False)
sketch6.addGeometry(Part.ArcOfCircle(Part.Circle(App.Vector(42.5, -50, 0), App.Vector(0, 0, 1), 1.95), math.radians(90), math.radians(360)), False)
sketch6.addGeometry(Part.ArcOfCircle(Part.Circle(App.Vector(42.5, -36, 0), App.Vector(0, 0, 1), 1.95), math.radians(0), math.radians(270)), False)
sketch6.addGeometry(Part.ArcOfCircle(Part.Circle(App.Vector(42.5, -36, 0), App.Vector(0, 0, 1), 1.95), math.radians(-90), math.radians(0)), False)
sketch6.addGeometry(Part.ArcOfCircle(Part.Circle(App.Vector(107.5, -36, 0), App.Vector(0, 0, 1), 1.95), math.radians(-180), math.radians(-90)), False)
sketch6.addGeometry(Part.ArcOfCircle(Part.Circle(App.Vector(107.5, -36, 0), App.Vector(0, 0, 1), 1.95), math.radians(0), math.radians(180)), False)
sketch6.addGeometry(Part.ArcOfCircle(Part.Circle(App.Vector(107.5, -36, 0), App.Vector(0, 0, 1), 1.95), math.radians(-90), math.radians(0)), False)
sketch6.addGeometry(Part.ArcOfCircle(Part.Circle(App.Vector(107.5, -50, 0), App.Vector(0, 0, 1), 1.95), math.radians(180), math.radians(360)), False)
sketch6.addGeometry(Part.ArcOfCircle(Part.Circle(App.Vector(107.5, -50, 0), App.Vector(0, 0, 1), 1.95), math.radians(90), math.radians(180)), False)
sketch6.addGeometry(Part.ArcOfCircle(Part.Circle(App.Vector(107.5, -50, 0), App.Vector(0, 0, 1), 1.95), math.radians(0), math.radians(90)), False)
sketch6.addConstraint(Sketcher.Constraint("Tangent", 0, 1, 1, 2))
sketch6.addConstraint(Sketcher.Constraint("Coincident", 1, 1, 0, 2))
sketch6.addConstraint(Sketcher.Constraint("Tangent", 2, 1, 3, 2))
sketch6.addConstraint(Sketcher.Constraint("Coincident", 3, 1, 2, 2))
sketch6.addConstraint(Sketcher.Constraint("Tangent", 4, 1, 5, 2))
sketch6.addConstraint(Sketcher.Constraint("Tangent", 5, 1, 6, 2))
sketch6.addConstraint(Sketcher.Constraint("Tangent", 6, 1, 4, 2))
sketch6.addConstraint(Sketcher.Constraint("Tangent", 7, 1, 8, 2))
sketch6.addConstraint(Sketcher.Constraint("Tangent", 8, 1, 9, 2))
sketch6.addConstraint(Sketcher.Constraint("Tangent", 9, 1, 7, 2))
sketch6.addConstraint(Sketcher.Constraint("Equal", 1, 2))
sketch6.addConstraint(Sketcher.Constraint("Equal", 3, 4))
sketch6.addConstraint(Sketcher.Constraint("Equal", 6, 7))
sketch6.addConstraint(Sketcher.Constraint("Horizontal", 3, 3, 4, 3))
sketch6.addConstraint(Sketcher.Constraint("Horizontal", 1, 3, 7, 3))
sketch6.addConstraint(Sketcher.Constraint("Horizontal", 9, 3, 0, 1))
sketch6.addConstraint(Sketcher.Constraint("Horizontal", 6, 3, 2, 1))
sketch6.addConstraint(Sketcher.Constraint("Horizontal", 2, 1, 4, 1))
sketch6.addConstraint(Sketcher.Constraint("Horizontal", 4, 1, 5, 1))
sketch6.addConstraint(Sketcher.Constraint("Horizontal", 0, 1, 7, 1))
sketch6.addConstraint(Sketcher.Constraint("Horizontal", 7, 1, 9, 1))
sketch6.addConstraint(Sketcher.Constraint("Vertical", 1, 3, 2, 3))
sketch6.addConstraint(Sketcher.Constraint("Vertical", 6, 3, 7, 3))
sketch6.addConstraint(Sketcher.Constraint("Vertical", 3, 3, 1, 1))
sketch6.addConstraint(Sketcher.Constraint("Vertical", 1, 1, 3, 1))
sketch6.addConstraint(Sketcher.Constraint("Vertical", 9, 3, 6, 1))
sketch6.addConstraint(Sketcher.Constraint("Vertical", 6, 1, 8, 1))
sketch6.addConstraint(Sketcher.Constraint("Radius", 0, Q("1.95 mm")))
sketch6.addConstraint(Sketcher.Constraint("DistanceY", 0, 3, -1, 1, Q("50 mm")))
sketch6.addConstraint(Sketcher.Constraint("DistanceY", 2, 3, -1, 1, Q("36 mm")))
sketch6.addConstraint(Sketcher.Constraint("DistanceX", 2, 3, 4, 3, Q("65 mm")))
sketch6.addConstraint(Sketcher.Constraint("DistanceX", -1, 1, 0, 3, Q("42.5 mm")))
sketch6.setExpression("Constraints[27]", "Params.sketch6_radius")
pocket4 = doc.addObject("PartDesign::Pocket", "Pocket003")
body.addObject(pocket4)
pocket4.Profile = sketch6
pocket4.setExpression("Length", "Params.pocket4_length")
pocket4.Reversed = True

# Sketch on XZ plane
sketch7 = doc.addObject("Sketcher::SketchObject", "Sketch006")
body.addObject(sketch7)
sketch7.AttachmentSupport = (doc.XZ_Plane, [""])
sketch7.MapMode = "FlatFace"
sketch7.AttachmentOffset = App.Placement(App.Vector(0, 0, -7), App.Rotation())
add_polygon(sketch7, [(106.5, -38), (106.5, -48), (43.5, -48), (43.5, -38)])  # lines 0-3
sketch7.addConstraint(Sketcher.Constraint("Vertical", 0))
sketch7.addConstraint(Sketcher.Constraint("Horizontal", 1))
sketch7.addConstraint(Sketcher.Constraint("Vertical", 2))
sketch7.addConstraint(Sketcher.Constraint("Horizontal", 3))
sketch7.addConstraint(Sketcher.Constraint("DistanceX", 1, 2, 1, 1, Q("63 mm")))
sketch7.addConstraint(Sketcher.Constraint("DistanceY", 0, 2, 0, 1, Q("10 mm")))
sketch7.addConstraint(Sketcher.Constraint("DistanceY", 0, 2, -1, 1, Q("48 mm")))
sketch7.addConstraint(Sketcher.Constraint("DistanceX", -1, 1, 0, 2, Q("106.5 mm")))
sketch7.setExpression("Constraints[8]", "Params.sketch7_width")
sketch7.setExpression("Constraints[9]", "Params.sketch7_height")
pocket5 = doc.addObject("PartDesign::Pocket", "Pocket004")
body.addObject(pocket5)
pocket5.Profile = sketch7
pocket5.setExpression("Length", "Params.pocket5_length")
pocket5.Reversed = True

doc.recompute()
